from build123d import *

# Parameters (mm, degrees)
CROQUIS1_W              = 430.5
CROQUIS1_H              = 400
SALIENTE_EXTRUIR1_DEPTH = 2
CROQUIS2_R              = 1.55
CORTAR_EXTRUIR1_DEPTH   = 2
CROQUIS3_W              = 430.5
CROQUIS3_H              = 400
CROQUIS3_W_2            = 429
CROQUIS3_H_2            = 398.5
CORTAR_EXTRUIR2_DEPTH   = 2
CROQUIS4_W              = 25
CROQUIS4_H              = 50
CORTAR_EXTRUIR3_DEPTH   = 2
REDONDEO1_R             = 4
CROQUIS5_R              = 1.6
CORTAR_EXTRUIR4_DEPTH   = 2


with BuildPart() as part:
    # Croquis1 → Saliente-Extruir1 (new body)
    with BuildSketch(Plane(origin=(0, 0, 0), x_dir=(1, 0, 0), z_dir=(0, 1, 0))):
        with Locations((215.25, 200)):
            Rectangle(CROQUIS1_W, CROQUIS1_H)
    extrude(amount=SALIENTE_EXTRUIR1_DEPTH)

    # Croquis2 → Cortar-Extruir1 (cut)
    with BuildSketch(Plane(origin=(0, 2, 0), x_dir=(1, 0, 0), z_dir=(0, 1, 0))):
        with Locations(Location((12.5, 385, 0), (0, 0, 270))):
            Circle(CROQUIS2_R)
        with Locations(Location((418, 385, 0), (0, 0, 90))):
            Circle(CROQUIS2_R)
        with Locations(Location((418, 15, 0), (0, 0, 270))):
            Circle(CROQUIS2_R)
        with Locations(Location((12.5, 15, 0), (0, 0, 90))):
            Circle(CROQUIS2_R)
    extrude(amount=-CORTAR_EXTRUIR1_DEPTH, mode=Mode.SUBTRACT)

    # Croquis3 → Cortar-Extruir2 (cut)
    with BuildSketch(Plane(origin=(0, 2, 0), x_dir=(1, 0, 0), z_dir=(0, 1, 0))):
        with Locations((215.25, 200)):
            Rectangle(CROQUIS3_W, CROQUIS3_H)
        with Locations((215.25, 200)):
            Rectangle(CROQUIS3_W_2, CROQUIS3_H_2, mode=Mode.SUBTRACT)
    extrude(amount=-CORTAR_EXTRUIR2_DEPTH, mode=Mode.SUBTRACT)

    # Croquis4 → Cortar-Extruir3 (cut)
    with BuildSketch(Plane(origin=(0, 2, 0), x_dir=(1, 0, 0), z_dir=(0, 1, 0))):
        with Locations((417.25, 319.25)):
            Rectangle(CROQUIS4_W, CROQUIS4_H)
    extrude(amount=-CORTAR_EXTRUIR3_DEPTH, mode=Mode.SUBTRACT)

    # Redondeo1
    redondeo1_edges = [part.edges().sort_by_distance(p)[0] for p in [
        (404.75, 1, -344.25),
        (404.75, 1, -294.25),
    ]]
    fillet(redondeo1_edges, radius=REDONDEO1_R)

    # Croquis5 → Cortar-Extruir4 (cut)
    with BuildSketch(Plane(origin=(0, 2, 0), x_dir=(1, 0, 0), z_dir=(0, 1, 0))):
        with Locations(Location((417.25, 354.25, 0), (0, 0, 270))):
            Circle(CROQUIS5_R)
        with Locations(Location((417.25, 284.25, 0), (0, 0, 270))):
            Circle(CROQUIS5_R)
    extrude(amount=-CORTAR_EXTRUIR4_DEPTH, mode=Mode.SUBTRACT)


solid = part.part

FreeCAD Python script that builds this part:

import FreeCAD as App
import Part
import Sketcher

V = App.Vector
Q = App.Units.Quantity


def edges_at(feature, points):
    """Names of the edges that pass closest to the given points."""
    edges = feature.Shape.Edges
    near = lambda p: min(range(len(edges)), key=lambda i: edges[i].distToShape(Part.Vertex(*p))[0])
    return sorted({f"Edge{near(p) + 1}" for p in points})


def add_polygon(sketch, points):
    """Adds a closed chain of lines whose ends are joined by coincident constraints."""
    first, n = sketch.GeometryCount, len(points)
    for a, b in zip(points, points[1:] + points[:1]):
        sketch.addGeometry(Part.LineSegment(App.Vector(*a, 0), App.Vector(*b, 0)), False)
    for i in range(n):
        sketch.addConstraint(Sketcher.Constraint("Coincident", first + i, 2, first + (i + 1) % n, 1))

doc = App.newDocument("Part")
body = doc.addObject("PartDesign::Body", "Body")

sketch1 = body.newObject("Sketcher::SketchObject", "Sketch")
sketch1.AttachmentSupport = (doc.getObject("XZ_Plane"), [""])
sketch1.MapMode = "FlatFace"
add_polygon(sketch1, [(0, -400), (0, 0), (430, 0), (430, -400)])
sketch1.addConstraint([
    Sketcher.Constraint("Vertical", 0),
    Sketcher.Constraint("Horizontal", 1),
    Sketcher.Constraint("Vertical", 2),
    Sketcher.Constraint("Horizontal", 3),
    Sketcher.Constraint("Coincident", 0, 2, -1, 1),
    Sketcher.Constraint("DistanceY", 0, 1, 0, 2, Q("400 mm")),
    Sketcher.Constraint("DistanceX", 1, 1, 1, 2, Q("430.5 mm")),
])
pad1 = body.newObject("PartDesign::Pad", "Pad")
pad1.Profile = sketch1
pad1.Length = 2
pad1.Reversed = True

sketch2 = body.newObject("Sketcher::SketchObject", "Sketch001")
sketch2.AttachmentSupport = (doc.getObject("XZ_Plane"), [""])
sketch2.MapMode = "FlatFace"
sketch2.AttachmentOffset = App.Placement(V(0, 0, -2), App.Rotation())
sketch2.addGeometry([
    Part.Circle(V(12.5, -385, 0), V(0, 0, 1), 1.6),
    Part.Circle(V(418, -385, 0), V(0, 0, 1), 1.6),
    Part.Circle(V(418, -15, 0), V(0, 0, 1), 1.6),
    Part.Circle(V(12.5, -15, 0), V(0, 0, 1), 1.6),
], False)
sketch2.addConstraint([
    Sketcher.Constraint("Equal", 0, 1),
    Sketcher.Constraint("Equal", 1, 2),
    Sketcher.Constraint("Equal", 2, 3),
    Sketcher.Constraint("Horizontal", 0, 3, 1, 3),
    Sketcher.Constraint("Horizontal", 2, 3, 3, 3),
    Sketcher.Constraint("Vertical", 1, 3, 2, 3),
    Sketcher.Constraint("Vertical", 0, 3, 3, 3),
    Sketcher.Constraint("Diameter", 0, Q("3.1 mm")),
    Sketcher.Constraint("DistanceY", 0, 3, -1, 1, Q("385 mm")),
    Sketcher.Constraint("DistanceX", -1, 1, 1, 3, Q("418 mm")),
    Sketcher.Constraint("DistanceY", 2, 3, -1, 1, Q("15 mm")),
    Sketcher.Constraint("DistanceX", -1, 1, 0, 3, Q("12.5 mm")),
])
pocket1 = body.newObject("PartDesign::Pocket", "Pocket")
pocket1.Profile = sketch2
pocket1.Length = 2
pocket1.Reversed = True

sketch3 = body.newObject("Sketcher::SketchObject", "Sketch002")
sketch3.AttachmentSupport = (doc.getObject("XZ_Plane"), [""])
sketch3.MapMode = "FlatFace"
sketch3.AttachmentOffset = App.Placement(V(0, 0, -2), App.Rotation())
add_polygon(sketch3, [(0, -400), (0, 0), (430, 0), (430, -400)])
add_polygon(sketch3, [(430, -1), (1, -1), (1, -399), (430, -399)])
sketch3.addConstraint([
    Sketcher.Constraint("Vertical", 0),
    Sketcher.Constraint("Horizontal", 1),
    Sketcher.Constraint("Vertical", 2),
    Sketcher.Constraint("Horizontal", 3),
    Sketcher.Constraint("Horizontal", 4),
    Sketcher.Constraint("Vertical", 5),
    Sketcher.Constraint("Horizontal", 6),
    Sketcher.Constraint("Vertical", 7),
    Sketcher.Constraint("Coincident", 0, 2, -1, 1),
    Sketcher.Constraint("DistanceX", 4, 2, 4, 1, Q("429 mm")),
    Sketcher.Constraint("DistanceY", 0, 1, 0, 2, Q("400 mm")),
    Sketcher.Constraint("DistanceX", 1, 1, 1, 2, Q("430.5 mm")),
    Sketcher.Constraint("DistanceY", 5, 2, 5, 1, Q("398.5 mm")),
    Sketcher.Constraint("DistanceX", -1, 1, 4, 2, Q("0.75 mm")),
    Sketcher.Constraint("DistanceY", 4, 2, -1, 1, Q("0.75 mm")),
])
pocket2 = body.newObject("PartDesign::Pocket", "Pocket001")
pocket2.Profile = sketch3
pocket2.Length = 2
pocket2.Reversed = True

sketch4 = body.newObject("Sketcher::SketchObject", "Sketch003")
sketch4.AttachmentSupport = (doc.getObject("XZ_Plane"), [""])
sketch4.MapMode = "FlatFace"
sketch4.AttachmentOffset = App.Placement(V(0, 0, -2), App.Rotation())
add_polygon(sketch4, [(405, -344), (405, -294), (430, -294), (430, -344)])
sketch4.addConstraint([
    Sketcher.Constraint("Vertical", 0),
    Sketcher.Constraint("Horizontal", 1),
    Sketcher.Constraint("Vertical", 2),
    Sketcher.Constraint("Horizontal", 3),
    Sketcher.Constraint("DistanceX", 1, 1, 1, 2, Q("25 mm")),
    Sketcher.Constraint("DistanceY", 0, 1, 0, 2, Q("50 mm")),
    Sketcher.Constraint("DistanceX", -1, 1, 0, 2, Q("404.75 mm")),
    Sketcher.Constraint("DistanceY", 0, 2, -1, 1, Q("294.25 mm")),
])
pocket3 = body.newObject("PartDesign::Pocket", "Pocket002")
pocket3.Profile = sketch4
pocket3.Length = 2
pocket3.Reversed = True
doc.recompute()

fillet = body.newObject("PartDesign::Fillet", "Fillet")
fillet.Base = (pocket3, edges_at(pocket3, [(404.75, 1, -344.25), (404.75, 1, -294.25)]))
fillet.Radius = 4

sketch5 = body.newObject("Sketcher::SketchObject", "Sketch004")
sketch5.AttachmentSupport = (doc.getObject("XZ_Plane"), [""])
sketch5.MapMode = "FlatFace"
sketch5.AttachmentOffset = App.Placement(V(0, 0, -2), App.Rotation())
sketch5.addGeometry([
    Part.Circle(V(417.2, -354.2, 0), V(0, 0, 1), 1.6),
    Part.Circle(V(417.2, -284.2, 0), V(0, 0, 1), 1.6),
], False)
sketch5.addConstraint([
    Sketcher.Constraint("Equal", 0, 1),
    Sketcher.Constraint("Vertical", 0, 3, 1, 3),
    Sketcher.Constraint("Diameter", 0, Q("3.2 mm")),
    Sketcher.Constraint("DistanceY", 0, 3, 1, 3, Q("70 mm")),
    Sketcher.Constraint("DistanceX", -1, 1, 0, 3, Q("417.25 mm")),
    Sketcher.Constraint("DistanceY", 0, 3, -1, 1, Q("354.25 mm")),
])
pocket4 = body.newObject("PartDesign::Pocket", "Pocket003")
pocket4.Profile = sketch5
pocket4.Length = 2
pocket4.Reversed = True

doc.recompute()
